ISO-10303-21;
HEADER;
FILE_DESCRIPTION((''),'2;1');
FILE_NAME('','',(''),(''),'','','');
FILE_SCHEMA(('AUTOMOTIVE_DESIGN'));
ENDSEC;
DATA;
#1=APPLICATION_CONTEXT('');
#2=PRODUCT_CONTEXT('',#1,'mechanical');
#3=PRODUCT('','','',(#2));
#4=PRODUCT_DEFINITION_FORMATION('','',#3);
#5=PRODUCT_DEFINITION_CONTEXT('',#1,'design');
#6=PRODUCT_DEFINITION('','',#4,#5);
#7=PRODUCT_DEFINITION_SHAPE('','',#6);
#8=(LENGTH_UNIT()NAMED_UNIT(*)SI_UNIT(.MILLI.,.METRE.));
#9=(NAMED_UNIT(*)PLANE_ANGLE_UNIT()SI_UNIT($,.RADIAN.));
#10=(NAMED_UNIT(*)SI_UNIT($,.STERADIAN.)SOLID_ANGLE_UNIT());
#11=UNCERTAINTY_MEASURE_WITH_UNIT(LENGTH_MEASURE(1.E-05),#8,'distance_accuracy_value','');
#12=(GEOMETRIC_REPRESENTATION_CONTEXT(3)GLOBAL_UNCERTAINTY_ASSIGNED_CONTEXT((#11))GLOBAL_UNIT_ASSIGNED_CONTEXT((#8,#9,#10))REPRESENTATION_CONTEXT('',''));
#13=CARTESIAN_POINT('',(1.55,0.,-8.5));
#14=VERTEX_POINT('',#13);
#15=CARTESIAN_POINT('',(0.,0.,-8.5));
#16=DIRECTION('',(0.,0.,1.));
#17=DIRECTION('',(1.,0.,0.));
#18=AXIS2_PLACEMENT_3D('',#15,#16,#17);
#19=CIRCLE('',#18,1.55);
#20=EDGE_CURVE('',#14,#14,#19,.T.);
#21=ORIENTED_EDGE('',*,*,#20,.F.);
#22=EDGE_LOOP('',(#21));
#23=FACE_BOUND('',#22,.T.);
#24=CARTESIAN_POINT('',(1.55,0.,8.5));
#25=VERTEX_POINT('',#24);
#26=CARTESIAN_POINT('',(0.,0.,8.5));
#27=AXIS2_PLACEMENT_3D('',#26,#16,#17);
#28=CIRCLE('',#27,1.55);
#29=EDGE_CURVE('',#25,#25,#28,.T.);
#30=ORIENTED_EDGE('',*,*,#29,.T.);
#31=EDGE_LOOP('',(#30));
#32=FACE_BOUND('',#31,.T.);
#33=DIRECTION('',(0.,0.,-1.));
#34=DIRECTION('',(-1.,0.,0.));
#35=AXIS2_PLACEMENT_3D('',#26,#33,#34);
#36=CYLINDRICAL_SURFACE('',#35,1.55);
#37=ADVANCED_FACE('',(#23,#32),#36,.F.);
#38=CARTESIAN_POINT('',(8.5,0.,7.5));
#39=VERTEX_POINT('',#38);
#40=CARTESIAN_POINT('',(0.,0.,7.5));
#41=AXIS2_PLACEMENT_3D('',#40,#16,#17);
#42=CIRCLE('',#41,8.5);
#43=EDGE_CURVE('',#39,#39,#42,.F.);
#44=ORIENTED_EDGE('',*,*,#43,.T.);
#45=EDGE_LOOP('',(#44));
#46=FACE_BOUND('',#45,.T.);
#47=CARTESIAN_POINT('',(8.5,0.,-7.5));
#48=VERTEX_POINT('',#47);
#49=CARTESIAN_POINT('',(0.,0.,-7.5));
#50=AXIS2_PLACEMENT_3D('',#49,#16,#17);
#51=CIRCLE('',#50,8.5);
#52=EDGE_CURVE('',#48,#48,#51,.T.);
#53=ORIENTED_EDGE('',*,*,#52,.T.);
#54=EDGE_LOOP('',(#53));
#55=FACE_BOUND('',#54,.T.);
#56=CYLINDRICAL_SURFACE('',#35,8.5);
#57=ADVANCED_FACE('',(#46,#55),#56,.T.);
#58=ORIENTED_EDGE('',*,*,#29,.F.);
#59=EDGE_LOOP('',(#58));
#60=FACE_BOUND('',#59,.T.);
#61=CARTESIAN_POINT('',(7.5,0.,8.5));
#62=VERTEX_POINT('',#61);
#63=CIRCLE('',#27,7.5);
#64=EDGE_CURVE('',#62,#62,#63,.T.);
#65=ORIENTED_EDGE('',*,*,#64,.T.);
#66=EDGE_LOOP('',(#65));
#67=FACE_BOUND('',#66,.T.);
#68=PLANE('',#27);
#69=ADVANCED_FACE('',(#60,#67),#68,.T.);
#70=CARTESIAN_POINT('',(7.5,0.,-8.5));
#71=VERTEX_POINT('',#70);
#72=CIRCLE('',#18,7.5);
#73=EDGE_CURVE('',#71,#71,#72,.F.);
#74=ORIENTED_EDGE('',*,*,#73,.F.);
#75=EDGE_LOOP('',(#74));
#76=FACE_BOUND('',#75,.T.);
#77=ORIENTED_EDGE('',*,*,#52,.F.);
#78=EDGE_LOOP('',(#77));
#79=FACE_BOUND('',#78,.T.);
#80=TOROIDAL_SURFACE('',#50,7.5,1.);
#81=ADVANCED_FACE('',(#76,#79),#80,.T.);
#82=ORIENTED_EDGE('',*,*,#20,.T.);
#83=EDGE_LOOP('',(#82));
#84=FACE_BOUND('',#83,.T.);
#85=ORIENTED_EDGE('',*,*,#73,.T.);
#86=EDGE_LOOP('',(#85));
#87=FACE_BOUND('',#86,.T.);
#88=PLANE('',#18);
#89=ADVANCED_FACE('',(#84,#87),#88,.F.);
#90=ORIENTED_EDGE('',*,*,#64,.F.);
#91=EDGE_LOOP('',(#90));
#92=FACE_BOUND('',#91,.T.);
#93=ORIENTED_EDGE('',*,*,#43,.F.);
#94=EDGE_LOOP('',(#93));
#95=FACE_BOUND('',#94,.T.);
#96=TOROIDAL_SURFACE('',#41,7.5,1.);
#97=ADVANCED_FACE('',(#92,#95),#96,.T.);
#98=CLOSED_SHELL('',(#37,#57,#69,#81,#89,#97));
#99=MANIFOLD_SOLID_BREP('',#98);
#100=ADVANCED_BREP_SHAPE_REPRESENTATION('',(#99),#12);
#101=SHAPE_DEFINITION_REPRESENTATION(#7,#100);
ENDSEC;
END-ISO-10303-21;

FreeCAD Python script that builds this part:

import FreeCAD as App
import Part
import Sketcher

V = App.Vector
Q = App.Units.Quantity


def edges_at(feature, points):
    """Names of the edges that pass closest to the given points."""
    edges = feature.Shape.Edges
    near = lambda p: min(range(len(edges)), key=lambda i: edges[i].distToShape(Part.Vertex(*p))[0])
    return sorted({f"Edge{near(p) + 1}" for p in points})

doc = App.newDocument("Part")
body = doc.addObject("PartDesign::Body", "Body")

sketch1 = doc.addObject("Sketcher::SketchObject", "Sketch")
body.addObject(sketch1)
sketch1.AttachmentSupport = (doc.XY_Plane, [""])
sketch1.MapMode = "FlatFace"
sketch1.addGeometry([
    Part.Circle(V(0, 0, 0), V(0, 0, 1), 8.5),
    Part.Circle(V(0, 0, 0), V(0, 0, 1), 1.6),
], False)
sketch1.addConstraint([
    Sketcher.Constraint("Coincident", 0, 3, -1, 1),
    Sketcher.Constraint("Coincident", 1, 3, -1, 1),
    Sketcher.Constraint("Diameter", 0, Q("17 mm")),
    Sketcher.Constraint("Diameter", 1, Q("3.1 mm")),
])
pad1 = doc.addObject("PartDesign::Pad", "Pad")
body.addObject(pad1)
pad1.Profile = sketch1
pad1.Length = 17
pad1.Midplane = True
doc.recompute()

fillet = doc.addObject("PartDesign::Fillet", "Fillet")
body.addObject(fillet)
fillet.Base = (pad1, edges_at(pad1, [(-8.5, 0, -8.5), (-8.5, 0, 8.5)]))
fillet.Radius = 1

doc.recompute()
